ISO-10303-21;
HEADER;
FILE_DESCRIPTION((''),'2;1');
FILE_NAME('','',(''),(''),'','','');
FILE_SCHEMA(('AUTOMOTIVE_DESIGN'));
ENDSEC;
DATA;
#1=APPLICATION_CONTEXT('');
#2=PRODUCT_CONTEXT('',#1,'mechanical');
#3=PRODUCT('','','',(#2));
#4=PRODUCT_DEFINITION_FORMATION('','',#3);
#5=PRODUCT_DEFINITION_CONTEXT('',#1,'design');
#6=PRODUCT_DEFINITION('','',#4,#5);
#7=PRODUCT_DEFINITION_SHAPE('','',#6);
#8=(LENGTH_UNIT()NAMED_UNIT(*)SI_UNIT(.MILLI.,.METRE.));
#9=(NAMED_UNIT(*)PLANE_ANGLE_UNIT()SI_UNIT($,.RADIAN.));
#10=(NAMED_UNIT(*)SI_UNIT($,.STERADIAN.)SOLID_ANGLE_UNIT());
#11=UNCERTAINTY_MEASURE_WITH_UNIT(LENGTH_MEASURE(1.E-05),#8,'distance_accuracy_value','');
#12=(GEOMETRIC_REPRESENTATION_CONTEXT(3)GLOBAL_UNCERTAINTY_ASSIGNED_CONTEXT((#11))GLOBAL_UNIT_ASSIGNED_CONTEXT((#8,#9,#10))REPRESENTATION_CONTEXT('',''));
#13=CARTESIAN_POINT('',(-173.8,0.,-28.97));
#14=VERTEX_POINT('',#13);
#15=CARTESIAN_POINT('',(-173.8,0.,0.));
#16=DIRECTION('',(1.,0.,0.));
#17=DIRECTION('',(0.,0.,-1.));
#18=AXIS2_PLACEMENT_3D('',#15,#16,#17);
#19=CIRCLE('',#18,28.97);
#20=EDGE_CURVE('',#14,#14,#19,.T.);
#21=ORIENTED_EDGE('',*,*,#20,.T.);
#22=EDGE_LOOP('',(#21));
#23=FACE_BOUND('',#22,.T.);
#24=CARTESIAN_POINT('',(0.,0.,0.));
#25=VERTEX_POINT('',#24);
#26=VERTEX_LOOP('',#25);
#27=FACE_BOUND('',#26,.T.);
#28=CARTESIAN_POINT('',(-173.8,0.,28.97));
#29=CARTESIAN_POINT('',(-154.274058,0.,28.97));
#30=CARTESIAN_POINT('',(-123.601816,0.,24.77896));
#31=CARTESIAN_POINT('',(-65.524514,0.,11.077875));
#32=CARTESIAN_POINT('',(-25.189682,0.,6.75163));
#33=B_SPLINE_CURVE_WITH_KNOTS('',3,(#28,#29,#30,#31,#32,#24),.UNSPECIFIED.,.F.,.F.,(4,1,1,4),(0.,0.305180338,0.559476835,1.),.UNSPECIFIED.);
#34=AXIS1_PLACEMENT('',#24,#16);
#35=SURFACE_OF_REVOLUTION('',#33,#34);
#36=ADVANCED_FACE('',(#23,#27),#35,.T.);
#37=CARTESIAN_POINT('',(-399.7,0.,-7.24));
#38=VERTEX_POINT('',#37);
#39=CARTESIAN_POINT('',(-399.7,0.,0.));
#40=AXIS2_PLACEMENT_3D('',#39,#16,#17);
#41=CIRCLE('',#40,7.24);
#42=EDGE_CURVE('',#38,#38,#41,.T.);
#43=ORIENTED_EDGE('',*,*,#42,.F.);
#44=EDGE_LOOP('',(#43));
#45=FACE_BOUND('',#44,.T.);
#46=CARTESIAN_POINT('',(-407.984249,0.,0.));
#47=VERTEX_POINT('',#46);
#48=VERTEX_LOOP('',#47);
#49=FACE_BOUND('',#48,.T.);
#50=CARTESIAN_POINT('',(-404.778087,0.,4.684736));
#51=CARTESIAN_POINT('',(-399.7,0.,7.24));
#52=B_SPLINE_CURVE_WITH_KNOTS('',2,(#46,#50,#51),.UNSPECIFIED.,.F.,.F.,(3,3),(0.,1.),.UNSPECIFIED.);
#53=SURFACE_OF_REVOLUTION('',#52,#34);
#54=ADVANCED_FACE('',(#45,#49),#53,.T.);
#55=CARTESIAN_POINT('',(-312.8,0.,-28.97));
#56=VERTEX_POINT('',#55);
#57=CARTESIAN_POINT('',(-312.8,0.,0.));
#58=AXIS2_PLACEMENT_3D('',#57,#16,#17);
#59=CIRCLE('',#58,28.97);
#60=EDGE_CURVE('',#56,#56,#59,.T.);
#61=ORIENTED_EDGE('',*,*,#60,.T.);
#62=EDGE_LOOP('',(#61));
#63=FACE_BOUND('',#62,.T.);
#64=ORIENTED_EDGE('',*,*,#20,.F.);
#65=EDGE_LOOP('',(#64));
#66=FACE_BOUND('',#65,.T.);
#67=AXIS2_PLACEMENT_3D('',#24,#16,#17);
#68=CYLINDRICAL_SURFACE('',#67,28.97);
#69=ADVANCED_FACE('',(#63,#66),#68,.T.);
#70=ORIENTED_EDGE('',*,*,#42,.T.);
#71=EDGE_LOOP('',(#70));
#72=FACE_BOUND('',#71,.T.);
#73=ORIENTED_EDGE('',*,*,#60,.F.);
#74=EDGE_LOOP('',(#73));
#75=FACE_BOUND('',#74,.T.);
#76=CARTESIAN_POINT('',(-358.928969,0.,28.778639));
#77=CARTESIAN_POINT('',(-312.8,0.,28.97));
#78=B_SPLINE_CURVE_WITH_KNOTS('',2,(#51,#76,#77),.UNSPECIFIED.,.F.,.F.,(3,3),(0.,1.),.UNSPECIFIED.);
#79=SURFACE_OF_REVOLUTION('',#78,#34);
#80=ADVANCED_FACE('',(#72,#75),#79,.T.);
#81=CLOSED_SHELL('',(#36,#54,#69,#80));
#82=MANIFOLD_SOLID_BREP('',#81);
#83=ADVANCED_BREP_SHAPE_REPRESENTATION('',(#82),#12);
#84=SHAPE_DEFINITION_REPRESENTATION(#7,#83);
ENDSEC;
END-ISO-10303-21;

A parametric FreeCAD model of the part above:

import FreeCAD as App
import Part
import Sketcher

V = App.Vector

doc = App.newDocument("Part")
body = doc.addObject("PartDesign::Body", "Body")

sketch1 = body.newObject("Sketcher::SketchObject", "Sketch")
sketch1.AttachmentSupport = (doc.getObject("XZ_Plane"), [""])
sketch1.MapMode = "FlatFace"
sketch1.addGeometry(Part.LineSegment(V(-312.8, 28.97, 0), V(-173.8, 28.97, 0)), False)
sketch1.addGeometry(Part.BSplineCurve([V(0, 0, 0), V(-25.189682, 6.75163, 0), V(-65.524514, 11.077875, 0), V(-123.601816, 24.77896, 0), V(-154.274058, 28.97, 0), V(-173.8, 28.97, 0)], [4, 1, 1, 4], [0, 0.440523165, 0.694819662, 1], False, 3, [1, 1, 1, 1, 1, 1], False), False)
sketch1.addGeometry(Part.LineSegment(V(0, 0, 0), V(-407.984249, 0, 0)), False)
sketch1.addGeometry(Part.BSplineCurve([V(-399.7, 7.24, 0), V(-404.778087, 4.684736, 0), V(-407.984249, 0, 0)], [3, 3], [0, 1], False, 2, [1, 1, 1], False), False)
sketch1.addGeometry(Part.BSplineCurve([V(-312.8, 28.97, 0), V(-358.928969, 28.778639, 0), V(-399.7, 7.24, 0)], [3, 3], [0, 1], False, 2, [1, 1, 1], False), False)
sketch1.addConstraint(Sketcher.Constraint("Block", 1))
sketch1.addConstraint(Sketcher.Constraint("Block", 3))
sketch1.addConstraint(Sketcher.Constraint("Block", 4))
sketch1.addConstraint(Sketcher.Constraint("Coincident", 0, 2, 1, 2))
sketch1.addConstraint(Sketcher.Constraint("Coincident", 1, 1, 2, 1))
sketch1.addConstraint(Sketcher.Constraint("Coincident", 2, 2, 3, 2))
sketch1.addConstraint(Sketcher.Constraint("Coincident", 4, 1, 0, 1))
revolution = body.newObject("PartDesign::Revolution", "Revolution")
revolution.Profile = sketch1
revolution.ReferenceAxis = (sketch1, ["H_Axis"])
revolution.Angle = 360

doc.recompute()
